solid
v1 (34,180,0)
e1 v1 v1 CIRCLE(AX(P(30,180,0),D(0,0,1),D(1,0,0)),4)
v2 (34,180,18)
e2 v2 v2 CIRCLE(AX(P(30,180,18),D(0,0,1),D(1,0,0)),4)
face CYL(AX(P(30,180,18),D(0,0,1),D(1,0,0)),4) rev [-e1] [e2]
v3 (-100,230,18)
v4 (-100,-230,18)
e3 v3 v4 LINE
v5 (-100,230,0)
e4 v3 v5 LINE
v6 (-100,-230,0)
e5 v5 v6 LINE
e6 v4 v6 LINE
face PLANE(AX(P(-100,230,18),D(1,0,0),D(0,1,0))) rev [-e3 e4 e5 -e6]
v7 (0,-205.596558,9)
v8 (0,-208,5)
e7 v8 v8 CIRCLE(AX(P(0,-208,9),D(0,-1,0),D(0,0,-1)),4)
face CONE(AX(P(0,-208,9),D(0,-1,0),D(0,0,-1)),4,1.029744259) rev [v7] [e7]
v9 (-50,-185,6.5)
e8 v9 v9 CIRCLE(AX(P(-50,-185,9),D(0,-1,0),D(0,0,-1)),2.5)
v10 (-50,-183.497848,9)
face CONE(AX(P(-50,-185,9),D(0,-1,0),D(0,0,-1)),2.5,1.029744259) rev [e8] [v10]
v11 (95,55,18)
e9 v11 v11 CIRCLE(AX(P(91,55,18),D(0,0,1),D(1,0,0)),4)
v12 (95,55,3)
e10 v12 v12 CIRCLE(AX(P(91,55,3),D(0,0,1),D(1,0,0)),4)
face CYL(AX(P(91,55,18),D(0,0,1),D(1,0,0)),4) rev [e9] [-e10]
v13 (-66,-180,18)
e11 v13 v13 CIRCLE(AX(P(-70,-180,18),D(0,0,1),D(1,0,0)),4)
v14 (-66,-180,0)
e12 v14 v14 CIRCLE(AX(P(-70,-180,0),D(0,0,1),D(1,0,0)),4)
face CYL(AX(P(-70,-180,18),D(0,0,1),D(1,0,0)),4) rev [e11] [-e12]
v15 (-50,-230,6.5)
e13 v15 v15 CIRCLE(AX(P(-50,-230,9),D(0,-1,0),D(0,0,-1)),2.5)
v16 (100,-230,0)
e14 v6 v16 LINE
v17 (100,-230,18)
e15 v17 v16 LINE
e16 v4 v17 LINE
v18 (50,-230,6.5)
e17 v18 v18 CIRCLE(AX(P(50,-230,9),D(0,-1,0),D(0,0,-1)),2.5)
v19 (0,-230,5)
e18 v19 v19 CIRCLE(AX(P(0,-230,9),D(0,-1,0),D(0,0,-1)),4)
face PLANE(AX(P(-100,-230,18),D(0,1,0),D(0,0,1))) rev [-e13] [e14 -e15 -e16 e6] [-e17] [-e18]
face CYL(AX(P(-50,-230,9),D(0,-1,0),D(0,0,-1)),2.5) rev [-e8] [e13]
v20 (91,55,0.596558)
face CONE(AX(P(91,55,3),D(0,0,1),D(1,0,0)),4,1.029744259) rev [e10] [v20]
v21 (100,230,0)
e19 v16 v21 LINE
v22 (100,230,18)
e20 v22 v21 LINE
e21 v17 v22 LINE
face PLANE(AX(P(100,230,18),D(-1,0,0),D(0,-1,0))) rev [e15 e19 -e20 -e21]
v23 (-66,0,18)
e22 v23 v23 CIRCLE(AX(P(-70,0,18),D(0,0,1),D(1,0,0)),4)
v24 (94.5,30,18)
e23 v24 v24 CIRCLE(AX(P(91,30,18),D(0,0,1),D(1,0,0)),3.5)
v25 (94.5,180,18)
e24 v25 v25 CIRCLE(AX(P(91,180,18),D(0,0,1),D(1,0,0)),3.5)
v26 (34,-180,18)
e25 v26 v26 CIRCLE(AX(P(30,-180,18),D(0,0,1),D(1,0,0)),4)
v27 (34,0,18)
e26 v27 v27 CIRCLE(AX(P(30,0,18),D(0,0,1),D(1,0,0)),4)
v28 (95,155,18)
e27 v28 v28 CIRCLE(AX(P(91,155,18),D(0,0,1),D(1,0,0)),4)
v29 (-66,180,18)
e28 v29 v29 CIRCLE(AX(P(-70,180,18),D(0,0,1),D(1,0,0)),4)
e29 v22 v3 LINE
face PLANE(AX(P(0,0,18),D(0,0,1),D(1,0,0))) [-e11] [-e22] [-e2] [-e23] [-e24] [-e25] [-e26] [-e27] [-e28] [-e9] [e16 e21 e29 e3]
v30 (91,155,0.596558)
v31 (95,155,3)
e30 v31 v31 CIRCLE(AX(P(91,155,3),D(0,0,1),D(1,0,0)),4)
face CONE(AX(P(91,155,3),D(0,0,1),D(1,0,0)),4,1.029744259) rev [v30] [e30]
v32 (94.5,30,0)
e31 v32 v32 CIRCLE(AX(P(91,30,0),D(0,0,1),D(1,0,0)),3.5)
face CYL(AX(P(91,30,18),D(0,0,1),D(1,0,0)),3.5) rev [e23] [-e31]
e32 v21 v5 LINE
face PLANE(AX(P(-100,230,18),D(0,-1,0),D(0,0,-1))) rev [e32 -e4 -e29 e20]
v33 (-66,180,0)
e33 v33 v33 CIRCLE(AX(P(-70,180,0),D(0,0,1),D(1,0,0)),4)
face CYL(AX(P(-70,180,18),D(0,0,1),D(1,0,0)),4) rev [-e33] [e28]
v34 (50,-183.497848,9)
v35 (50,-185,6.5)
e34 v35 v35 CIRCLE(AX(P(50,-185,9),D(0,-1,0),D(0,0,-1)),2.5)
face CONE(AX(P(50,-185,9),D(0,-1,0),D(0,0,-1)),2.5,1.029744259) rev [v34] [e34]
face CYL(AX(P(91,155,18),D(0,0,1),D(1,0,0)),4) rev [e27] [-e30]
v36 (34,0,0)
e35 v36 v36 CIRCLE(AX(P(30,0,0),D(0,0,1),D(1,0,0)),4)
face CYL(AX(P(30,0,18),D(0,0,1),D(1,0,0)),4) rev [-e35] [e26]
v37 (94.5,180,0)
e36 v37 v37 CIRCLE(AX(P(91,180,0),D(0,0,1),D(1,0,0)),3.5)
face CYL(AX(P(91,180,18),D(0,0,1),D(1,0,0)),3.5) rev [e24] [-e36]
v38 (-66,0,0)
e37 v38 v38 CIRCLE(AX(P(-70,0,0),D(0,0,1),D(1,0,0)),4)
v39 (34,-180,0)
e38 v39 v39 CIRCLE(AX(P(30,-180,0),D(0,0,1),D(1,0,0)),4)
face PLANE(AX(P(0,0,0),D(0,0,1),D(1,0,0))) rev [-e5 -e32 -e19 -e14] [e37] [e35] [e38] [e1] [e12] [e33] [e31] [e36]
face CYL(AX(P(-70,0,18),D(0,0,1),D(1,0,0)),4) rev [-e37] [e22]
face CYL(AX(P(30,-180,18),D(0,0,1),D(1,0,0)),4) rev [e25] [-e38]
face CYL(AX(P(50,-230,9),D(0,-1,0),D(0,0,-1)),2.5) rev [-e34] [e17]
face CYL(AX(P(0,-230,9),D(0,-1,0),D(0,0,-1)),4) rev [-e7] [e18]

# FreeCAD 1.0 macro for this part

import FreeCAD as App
import Part
import Sketcher
Q = App.Units.Quantity


def add_polygon(sketch, points):
    """Adds a closed chain of lines whose ends are joined by coincident constraints."""
    first, n = sketch.GeometryCount, len(points)
    for a, b in zip(points, points[1:] + points[:1]):
        sketch.addGeometry(Part.LineSegment(App.Vector(*a, 0), App.Vector(*b, 0)), False)
    for i in range(n):
        sketch.addConstraint(Sketcher.Constraint("Coincident", first + i, 2, first + (i + 1) % n, 1))

doc = App.newDocument("Part")
body = doc.addObject("PartDesign::Body", "Body")

sketch1 = body.newObject("Sketcher::SketchObject", "Sketch")
sketch1.AttachmentSupport = (doc.getObject("XY_Plane"), [""])
sketch1.MapMode = "FlatFace"
add_polygon(sketch1, [(-100, 230), (-100, -230), (100, -230), (100, 230)])
sketch1.addConstraint(Sketcher.Constraint("Vertical", 0))
sketch1.addConstraint(Sketcher.Constraint("Horizontal", 1))
sketch1.addConstraint(Sketcher.Constraint("Vertical", 2))
sketch1.addConstraint(Sketcher.Constraint("Horizontal", 3))
sketch1.addConstraint(Sketcher.Constraint("Symmetric", 0, 2, 2, 2, -1, 1))
sketch1.addConstraint(Sketcher.Constraint("DistanceX", 1, 1, 1, 2, Q("200 mm")))
sketch1.addConstraint(Sketcher.Constraint("DistanceY", 0, 2, 0, 1, Q("460 mm")))
pad1 = body.newObject("PartDesign::Pad", "Pad")
pad1.Profile = sketch1
pad1.Length = 18

sketch2 = body.newObject("Sketcher::SketchObject", "Sketch001")
sketch2.AttachmentSupport = (doc.getObject("XY_Plane"), [""])
sketch2.MapMode = "FlatFace"
sketch2.AttachmentOffset = App.Placement(App.Vector(0, 0, 18), App.Rotation())
sketch2.addGeometry(Part.Circle(App.Vector(30, -180, 0), App.Vector(0, 0, 1), 4), False)
sketch2.addGeometry(Part.Circle(App.Vector(-70, -180, 0), App.Vector(0, 0, 1), 4), False)
sketch2.addGeometry(Part.Circle(App.Vector(-70, 0, 0), App.Vector(0, 0, 1), 4), False)
sketch2.addGeometry(Part.Circle(App.Vector(30, 0, 0), App.Vector(0, 0, 1), 4), False)
sketch2.addGeometry(Part.Circle(App.Vector(30, 180, 0), App.Vector(0, 0, 1), 4), False)
sketch2.addGeometry(Part.Circle(App.Vector(-70, 180, 0), App.Vector(0, 0, 1), 4), False)
sketch2.addConstraint(Sketcher.Constraint("Equal", 0, 1))
sketch2.addConstraint(Sketcher.Constraint("Equal", 1, 2))
sketch2.addConstraint(Sketcher.Constraint("Equal", 2, 3))
sketch2.addConstraint(Sketcher.Constraint("Equal", 3, 4))
sketch2.addConstraint(Sketcher.Constraint("Equal", 4, 5))
sketch2.addConstraint(Sketcher.Constraint("Symmetric", 0, 3, 4, 3, -1))
sketch2.addConstraint(Sketcher.Constraint("Symmetric", 1, 3, 5, 3, -1))
sketch2.addConstraint(Sketcher.Constraint("PointOnObject", 2, 3, -1))
sketch2.addConstraint(Sketcher.Constraint("PointOnObject", 3, 3, -1))
sketch2.addConstraint(Sketcher.Constraint("Horizontal", 0, 3, 1, 3))
sketch2.addConstraint(Sketcher.Constraint("Vertical", 1, 3, 2, 3))
sketch2.addConstraint(Sketcher.Constraint("Vertical", 0, 3, 3, 3))
sketch2.addConstraint(Sketcher.Constraint("Diameter", 0, Q("8 mm")))
sketch2.addConstraint(Sketcher.Constraint("DistanceX", -1, 1, 0, 3, Q("30 mm")))
sketch2.addConstraint(Sketcher.Constraint("DistanceY", 0, 3, -1, 1, Q("180 mm")))
sketch2.addConstraint(Sketcher.Constraint("DistanceX", 1, 3, -1, 1, Q("70 mm")))
doc.recompute()
hole = body.newObject("PartDesign::Hole", "Hole")
hole.Profile = sketch2
hole.ThreadType = "None"
hole.Diameter = 8
hole.DepthType = "ThroughAll"

sketch3 = body.newObject("Sketcher::SketchObject", "Sketch002")
sketch3.AttachmentSupport = (doc.getObject("XY_Plane"), [""])
sketch3.MapMode = "FlatFace"
sketch3.AttachmentOffset = App.Placement(App.Vector(0, 0, 18), App.Rotation())
sketch3.addGeometry(Part.Circle(App.Vector(91, 30, 0), App.Vector(0, 0, 1), 3.5), False)
sketch3.addGeometry(Part.Circle(App.Vector(91, 180, 0), App.Vector(0, 0, 1), 3.5), False)
sketch3.addConstraint(Sketcher.Constraint("Equal", 0, 1))
sketch3.addConstraint(Sketcher.Constraint("Vertical", 0, 3, 1, 3))
sketch3.addConstraint(Sketcher.Constraint("Diameter", 0, Q("7 mm")))
sketch3.addConstraint(Sketcher.Constraint("DistanceX", -1, 1, 0, 3, Q("91 mm")))
sketch3.addConstraint(Sketcher.Constraint("DistanceY", -1, 1, 0, 3, Q("30 mm")))
sketch3.addConstraint(Sketcher.Constraint("DistanceY", -1, 1, 1, 3, Q("180 mm")))
doc.recompute()
hole2 = body.newObject("PartDesign::Hole", "Hole001")
hole2.Profile = sketch3
hole2.ThreadType = "None"
hole2.Diameter = 7
hole2.DepthType = "ThroughAll"

sketch4 = body.newObject("Sketcher::SketchObject", "Sketch003")
sketch4.AttachmentSupport = (doc.getObject("XZ_Plane"), [""])
sketch4.MapMode = "FlatFace"
sketch4.AttachmentOffset = App.Placement(App.Vector(0, 0, 230), App.Rotation())
sketch4.addGeometry(Part.Circle(App.Vector(50, 9, 0), App.Vector(0, 0, 1), 2.5), False)
sketch4.addGeometry(Part.Circle(App.Vector(-50, 9, 0), App.Vector(0, 0, 1), 2.5), False)
sketch4.addConstraint(Sketcher.Constraint("Equal", 0, 1))
sketch4.addConstraint(Sketcher.Constraint("Symmetric", 0, 3, 1, 3, -2))
sketch4.addConstraint(Sketcher.Constraint("Diameter", 0, Q("5 mm")))
sketch4.addConstraint(Sketcher.Constraint("DistanceX", -1, 1, 0, 3, Q("50 mm")))
sketch4.addConstraint(Sketcher.Constraint("DistanceY", -1, 1, 0, 3, Q("9 mm")))
doc.recompute()
hole3 = body.newObject("PartDesign::Hole", "Hole002")
hole3.Profile = sketch4
hole3.ThreadType = "None"
hole3.Diameter = 5
hole3.DepthType = "Dimension"
hole3.Depth = 45
hole3.DrillPoint = "Angled"
hole3.DrillPointAngle = 118

sketch5 = body.newObject("Sketcher::SketchObject", "Sketch004")
sketch5.AttachmentSupport = (doc.getObject("XY_Plane"), [""])
sketch5.MapMode = "FlatFace"
sketch5.AttachmentOffset = App.Placement(App.Vector(0, 0, 18), App.Rotation())
sketch5.addGeometry(Part.Circle(App.Vector(91, 55, 0), App.Vector(0, 0, 1), 4), False)
sketch5.addGeometry(Part.Circle(App.Vector(91, 155, 0), App.Vector(0, 0, 1), 4), False)
sketch5.addConstraint(Sketcher.Constraint("Equal", 0, 1))
sketch5.addConstraint(Sketcher.Constraint("Vertical", 0, 3, 1, 3))
sketch5.addConstraint(Sketcher.Constraint("Diameter", 0, Q("8 mm")))
sketch5.addConstraint(Sketcher.Constraint("DistanceX", -1, 1, 0, 3, Q("91 mm")))
sketch5.addConstraint(Sketcher.Constraint("DistanceY", -1, 1, 0, 3, Q("55 mm")))
sketch5.addConstraint(Sketcher.Constraint("DistanceY", -1, 1, 1, 3, Q("155 mm")))
doc.recompute()
hole4 = body.newObject("PartDesign::Hole", "Hole003")
hole4.Profile = sketch5
hole4.ThreadType = "None"
hole4.Diameter = 8
hole4.DepthType = "Dimension"
hole4.Depth = 15
hole4.DrillPoint = "Angled"
hole4.DrillPointAngle = 118

sketch6 = body.newObject("Sketcher::SketchObject", "Sketch005")
sketch6.AttachmentSupport = (doc.getObject("XZ_Plane"), [""])
sketch6.MapMode = "FlatFace"
sketch6.AttachmentOffset = App.Placement(App.Vector(0, 0, 230), App.Rotation())
sketch6.addGeometry(Part.Circle(App.Vector(0, 9, 0), App.Vector(0, 0, 1), 4), False)
sketch6.addConstraint(Sketcher.Constraint("PointOnObject", 0, 3, -2))
sketch6.addConstraint(Sketcher.Constraint("Diameter", 0, Q("8 mm")))
sketch6.addConstraint(Sketcher.Constraint("DistanceY", -1, 1, 0, 3, Q("9 mm")))
doc.recompute()
hole5 = body.newObject("PartDesign::Hole", "Hole004")
hole5.Profile = sketch6
hole5.ThreadType = "None"
hole5.Diameter = 8
hole5.DepthType = "Dimension"
hole5.Depth = 22
hole5.DrillPoint = "Angled"
hole5.DrillPointAngle = 118

doc.recompute()
